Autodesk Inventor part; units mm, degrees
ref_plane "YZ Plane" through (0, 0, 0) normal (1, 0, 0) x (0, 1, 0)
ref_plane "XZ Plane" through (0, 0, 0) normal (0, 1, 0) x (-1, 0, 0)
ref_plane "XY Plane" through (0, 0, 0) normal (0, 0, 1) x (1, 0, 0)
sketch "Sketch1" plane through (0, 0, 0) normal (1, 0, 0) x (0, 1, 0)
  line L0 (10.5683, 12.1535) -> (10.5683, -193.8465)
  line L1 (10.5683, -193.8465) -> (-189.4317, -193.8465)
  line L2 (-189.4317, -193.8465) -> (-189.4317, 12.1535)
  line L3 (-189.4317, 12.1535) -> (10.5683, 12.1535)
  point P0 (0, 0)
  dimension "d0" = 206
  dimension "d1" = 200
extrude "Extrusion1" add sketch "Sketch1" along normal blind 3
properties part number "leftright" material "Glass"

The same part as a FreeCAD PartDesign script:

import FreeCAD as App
import Part
import Sketcher


def add_polygon(sketch, points):
    """Adds a closed chain of lines whose ends are joined by coincident constraints."""
    first, n = sketch.GeometryCount, len(points)
    for a, b in zip(points, points[1:] + points[:1]):
        sketch.addGeometry(Part.LineSegment(App.Vector(*a, 0), App.Vector(*b, 0)), False)
    for i in range(n):
        sketch.addConstraint(Sketcher.Constraint("Coincident", first + i, 2, first + (i + 1) % n, 1))

doc = App.newDocument("Part")
body = doc.addObject("PartDesign::Body", "Body")

sketch1 = doc.addObject("Sketcher::SketchObject", "Sketch")
body.addObject(sketch1)
sketch1.AttachmentSupport = (doc.YZ_Plane, [""])
sketch1.MapMode = "FlatFace"
add_polygon(sketch1, [(11, -194), (11, 12), (-189, 12), (-189, -194)])
sketch1.addConstraint([
    Sketcher.Constraint("Vertical", 0),
    Sketcher.Constraint("Horizontal", 1),
    Sketcher.Constraint("Vertical", 2),
    Sketcher.Constraint("Horizontal", 3),
    Sketcher.Constraint("DistanceX", 1, 2, 1, 1, 200.0),
    Sketcher.Constraint("DistanceY", 0, 1, 0, 2, 206.0),
    Sketcher.Constraint("DistanceX", -1, 1, 0, 2, 10.5683),
    Sketcher.Constraint("DistanceY", -1, 1, 0, 2, 12.1535),
])
pad1 = doc.addObject("PartDesign::Pad", "Pad")
body.addObject(pad1)
pad1.Profile = sketch1
pad1.Length = 3

doc.recompute()
